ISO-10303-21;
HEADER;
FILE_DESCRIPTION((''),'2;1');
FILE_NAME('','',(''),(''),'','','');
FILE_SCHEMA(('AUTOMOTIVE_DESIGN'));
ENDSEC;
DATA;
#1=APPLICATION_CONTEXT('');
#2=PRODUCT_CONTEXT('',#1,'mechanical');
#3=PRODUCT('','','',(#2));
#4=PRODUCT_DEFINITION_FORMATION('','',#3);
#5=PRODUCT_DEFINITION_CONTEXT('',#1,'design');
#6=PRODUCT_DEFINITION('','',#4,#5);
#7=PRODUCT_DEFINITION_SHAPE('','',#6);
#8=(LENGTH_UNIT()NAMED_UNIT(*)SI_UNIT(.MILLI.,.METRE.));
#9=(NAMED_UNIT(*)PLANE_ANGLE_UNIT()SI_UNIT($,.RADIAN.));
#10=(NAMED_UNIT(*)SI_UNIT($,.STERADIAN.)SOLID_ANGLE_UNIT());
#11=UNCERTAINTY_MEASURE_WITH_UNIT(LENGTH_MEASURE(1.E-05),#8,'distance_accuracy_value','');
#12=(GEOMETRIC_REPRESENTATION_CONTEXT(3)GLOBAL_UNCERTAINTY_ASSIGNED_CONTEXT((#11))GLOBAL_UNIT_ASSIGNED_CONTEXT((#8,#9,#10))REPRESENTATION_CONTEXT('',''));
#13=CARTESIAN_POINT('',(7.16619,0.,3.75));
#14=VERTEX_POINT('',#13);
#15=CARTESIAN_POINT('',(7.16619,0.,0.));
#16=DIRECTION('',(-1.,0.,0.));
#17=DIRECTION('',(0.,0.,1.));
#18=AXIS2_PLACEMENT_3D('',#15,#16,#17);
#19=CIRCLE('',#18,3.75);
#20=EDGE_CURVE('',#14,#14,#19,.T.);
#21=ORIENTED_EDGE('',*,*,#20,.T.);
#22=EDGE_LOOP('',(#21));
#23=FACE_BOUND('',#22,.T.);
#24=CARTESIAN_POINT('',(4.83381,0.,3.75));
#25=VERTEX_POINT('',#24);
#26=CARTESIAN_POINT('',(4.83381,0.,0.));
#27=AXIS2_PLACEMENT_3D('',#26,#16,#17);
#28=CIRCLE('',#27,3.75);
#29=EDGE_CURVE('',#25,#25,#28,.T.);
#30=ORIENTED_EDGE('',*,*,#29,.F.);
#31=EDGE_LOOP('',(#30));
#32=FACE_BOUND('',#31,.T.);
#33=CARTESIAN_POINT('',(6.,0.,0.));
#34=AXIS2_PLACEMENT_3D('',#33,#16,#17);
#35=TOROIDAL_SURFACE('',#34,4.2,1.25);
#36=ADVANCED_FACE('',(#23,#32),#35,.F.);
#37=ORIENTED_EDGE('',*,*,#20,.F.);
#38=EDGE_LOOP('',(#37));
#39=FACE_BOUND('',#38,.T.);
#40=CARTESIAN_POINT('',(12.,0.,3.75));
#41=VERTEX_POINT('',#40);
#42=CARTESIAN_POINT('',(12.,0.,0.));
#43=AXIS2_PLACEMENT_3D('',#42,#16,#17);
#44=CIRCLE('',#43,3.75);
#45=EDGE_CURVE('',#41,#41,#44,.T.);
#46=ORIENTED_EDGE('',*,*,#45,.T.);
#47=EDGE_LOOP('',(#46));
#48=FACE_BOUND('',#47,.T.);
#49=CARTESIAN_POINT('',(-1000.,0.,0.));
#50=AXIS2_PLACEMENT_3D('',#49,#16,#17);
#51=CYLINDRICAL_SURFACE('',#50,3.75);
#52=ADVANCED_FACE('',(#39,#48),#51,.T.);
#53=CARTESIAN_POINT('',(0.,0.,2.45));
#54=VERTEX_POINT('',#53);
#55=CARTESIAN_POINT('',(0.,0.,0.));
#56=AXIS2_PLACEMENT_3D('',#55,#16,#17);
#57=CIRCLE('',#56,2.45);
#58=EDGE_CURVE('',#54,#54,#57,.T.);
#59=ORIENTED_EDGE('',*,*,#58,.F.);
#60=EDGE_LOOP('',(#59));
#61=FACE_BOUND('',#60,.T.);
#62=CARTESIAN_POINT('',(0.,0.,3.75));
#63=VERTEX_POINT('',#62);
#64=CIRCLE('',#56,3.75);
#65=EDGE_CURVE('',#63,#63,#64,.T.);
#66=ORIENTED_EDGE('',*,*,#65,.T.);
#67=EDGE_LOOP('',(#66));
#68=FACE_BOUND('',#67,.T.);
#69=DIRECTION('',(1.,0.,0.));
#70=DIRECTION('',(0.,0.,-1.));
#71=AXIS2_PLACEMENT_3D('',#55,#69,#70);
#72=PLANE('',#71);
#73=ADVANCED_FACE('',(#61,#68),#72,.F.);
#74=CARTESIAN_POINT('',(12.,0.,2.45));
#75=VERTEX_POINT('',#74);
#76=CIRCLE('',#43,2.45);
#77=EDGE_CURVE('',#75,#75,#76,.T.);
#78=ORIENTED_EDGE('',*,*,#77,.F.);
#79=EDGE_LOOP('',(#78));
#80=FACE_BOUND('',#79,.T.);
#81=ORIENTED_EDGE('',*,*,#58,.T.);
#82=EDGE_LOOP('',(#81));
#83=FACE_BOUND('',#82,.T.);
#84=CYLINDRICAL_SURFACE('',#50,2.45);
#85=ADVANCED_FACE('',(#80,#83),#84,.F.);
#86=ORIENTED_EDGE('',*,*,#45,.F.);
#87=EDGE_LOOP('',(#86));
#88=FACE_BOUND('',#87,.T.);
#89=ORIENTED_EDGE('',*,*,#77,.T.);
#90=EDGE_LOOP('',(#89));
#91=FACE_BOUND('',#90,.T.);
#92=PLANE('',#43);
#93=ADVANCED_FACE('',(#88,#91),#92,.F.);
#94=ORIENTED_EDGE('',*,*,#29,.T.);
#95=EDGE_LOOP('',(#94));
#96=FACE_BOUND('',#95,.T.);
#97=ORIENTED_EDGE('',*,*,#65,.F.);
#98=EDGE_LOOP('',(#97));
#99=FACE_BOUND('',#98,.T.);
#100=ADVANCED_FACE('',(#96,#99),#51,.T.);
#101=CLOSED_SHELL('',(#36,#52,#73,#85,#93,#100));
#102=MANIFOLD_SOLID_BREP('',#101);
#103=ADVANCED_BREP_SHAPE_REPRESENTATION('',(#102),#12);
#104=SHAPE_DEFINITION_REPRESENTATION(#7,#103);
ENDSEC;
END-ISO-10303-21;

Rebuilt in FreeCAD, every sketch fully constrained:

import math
import FreeCAD as App
import Part
import Sketcher
from FreeCAD import Vector

doc = App.newDocument("Part")
body = doc.addObject("PartDesign::Body", "Body")

sketch1 = body.newObject("Sketcher::SketchObject", "Sketch")
sketch1.AttachmentSupport = (doc.getObject("XY_Plane"), [""])
sketch1.MapMode = "FlatFace"
sketch1.addGeometry([
    Part.LineSegment(Vector(0, 2.45, 0), Vector(12, 2.45, 0)),
    Part.LineSegment(Vector(12, 2.45, 0), Vector(12, 3.75, 0)),
    Part.LineSegment(Vector(12, 3.75, 0), Vector(7.16619, 3.75, 0)),
    Part.ArcOfCircle(Part.Circle(Vector(6, 4.2, 0), Vector(0, 0, 1), 1.25), math.radians(-158.899804), math.radians(-21.100196)),
    Part.LineSegment(Vector(4.83381, 3.75, 0), Vector(0, 3.75, 0)),
    Part.LineSegment(Vector(0, 3.75, 0), Vector(0, 2.45, 0)),
], False)
sketch1.addConstraint([
    Sketcher.Constraint("Coincident", 0, 2, 1, 1),
    Sketcher.Constraint("Coincident", 1, 2, 2, 1),
    Sketcher.Constraint("Coincident", 2, 2, 3, 2),
    Sketcher.Constraint("Coincident", 3, 1, 4, 1),
    Sketcher.Constraint("Coincident", 4, 2, 5, 1),
    Sketcher.Constraint("Coincident", 5, 2, 0, 1),
    Sketcher.Constraint("Horizontal", 0),
    Sketcher.Constraint("Vertical", 1),
    Sketcher.Constraint("Horizontal", 2),
    Sketcher.Constraint("Horizontal", 4),
    Sketcher.Constraint("Vertical", 5),
    Sketcher.Constraint("PointOnObject", 4, 2, -2),
    Sketcher.Constraint("Horizontal", 2, 2, 3, 1),
    Sketcher.Constraint("Equal", 2, 4),
    Sketcher.Constraint("DistanceX", 0, 1, 0, 2, 12.0),
    Sketcher.Constraint("Radius", 3, 1.25),
    Sketcher.Constraint("DistanceY", 1, 1, 1, 2, 1.3),
    Sketcher.Constraint("DistanceY", -1, 1, 3, 3, 4.2),
    Sketcher.Constraint("DistanceY", -1, 1, 0, 2, 2.45),
])
revolution = body.newObject("PartDesign::Revolution", "Revolution")
revolution.Profile = sketch1
revolution.ReferenceAxis = (sketch1, ["H_Axis"])
revolution.Angle = 360

doc.recompute()
